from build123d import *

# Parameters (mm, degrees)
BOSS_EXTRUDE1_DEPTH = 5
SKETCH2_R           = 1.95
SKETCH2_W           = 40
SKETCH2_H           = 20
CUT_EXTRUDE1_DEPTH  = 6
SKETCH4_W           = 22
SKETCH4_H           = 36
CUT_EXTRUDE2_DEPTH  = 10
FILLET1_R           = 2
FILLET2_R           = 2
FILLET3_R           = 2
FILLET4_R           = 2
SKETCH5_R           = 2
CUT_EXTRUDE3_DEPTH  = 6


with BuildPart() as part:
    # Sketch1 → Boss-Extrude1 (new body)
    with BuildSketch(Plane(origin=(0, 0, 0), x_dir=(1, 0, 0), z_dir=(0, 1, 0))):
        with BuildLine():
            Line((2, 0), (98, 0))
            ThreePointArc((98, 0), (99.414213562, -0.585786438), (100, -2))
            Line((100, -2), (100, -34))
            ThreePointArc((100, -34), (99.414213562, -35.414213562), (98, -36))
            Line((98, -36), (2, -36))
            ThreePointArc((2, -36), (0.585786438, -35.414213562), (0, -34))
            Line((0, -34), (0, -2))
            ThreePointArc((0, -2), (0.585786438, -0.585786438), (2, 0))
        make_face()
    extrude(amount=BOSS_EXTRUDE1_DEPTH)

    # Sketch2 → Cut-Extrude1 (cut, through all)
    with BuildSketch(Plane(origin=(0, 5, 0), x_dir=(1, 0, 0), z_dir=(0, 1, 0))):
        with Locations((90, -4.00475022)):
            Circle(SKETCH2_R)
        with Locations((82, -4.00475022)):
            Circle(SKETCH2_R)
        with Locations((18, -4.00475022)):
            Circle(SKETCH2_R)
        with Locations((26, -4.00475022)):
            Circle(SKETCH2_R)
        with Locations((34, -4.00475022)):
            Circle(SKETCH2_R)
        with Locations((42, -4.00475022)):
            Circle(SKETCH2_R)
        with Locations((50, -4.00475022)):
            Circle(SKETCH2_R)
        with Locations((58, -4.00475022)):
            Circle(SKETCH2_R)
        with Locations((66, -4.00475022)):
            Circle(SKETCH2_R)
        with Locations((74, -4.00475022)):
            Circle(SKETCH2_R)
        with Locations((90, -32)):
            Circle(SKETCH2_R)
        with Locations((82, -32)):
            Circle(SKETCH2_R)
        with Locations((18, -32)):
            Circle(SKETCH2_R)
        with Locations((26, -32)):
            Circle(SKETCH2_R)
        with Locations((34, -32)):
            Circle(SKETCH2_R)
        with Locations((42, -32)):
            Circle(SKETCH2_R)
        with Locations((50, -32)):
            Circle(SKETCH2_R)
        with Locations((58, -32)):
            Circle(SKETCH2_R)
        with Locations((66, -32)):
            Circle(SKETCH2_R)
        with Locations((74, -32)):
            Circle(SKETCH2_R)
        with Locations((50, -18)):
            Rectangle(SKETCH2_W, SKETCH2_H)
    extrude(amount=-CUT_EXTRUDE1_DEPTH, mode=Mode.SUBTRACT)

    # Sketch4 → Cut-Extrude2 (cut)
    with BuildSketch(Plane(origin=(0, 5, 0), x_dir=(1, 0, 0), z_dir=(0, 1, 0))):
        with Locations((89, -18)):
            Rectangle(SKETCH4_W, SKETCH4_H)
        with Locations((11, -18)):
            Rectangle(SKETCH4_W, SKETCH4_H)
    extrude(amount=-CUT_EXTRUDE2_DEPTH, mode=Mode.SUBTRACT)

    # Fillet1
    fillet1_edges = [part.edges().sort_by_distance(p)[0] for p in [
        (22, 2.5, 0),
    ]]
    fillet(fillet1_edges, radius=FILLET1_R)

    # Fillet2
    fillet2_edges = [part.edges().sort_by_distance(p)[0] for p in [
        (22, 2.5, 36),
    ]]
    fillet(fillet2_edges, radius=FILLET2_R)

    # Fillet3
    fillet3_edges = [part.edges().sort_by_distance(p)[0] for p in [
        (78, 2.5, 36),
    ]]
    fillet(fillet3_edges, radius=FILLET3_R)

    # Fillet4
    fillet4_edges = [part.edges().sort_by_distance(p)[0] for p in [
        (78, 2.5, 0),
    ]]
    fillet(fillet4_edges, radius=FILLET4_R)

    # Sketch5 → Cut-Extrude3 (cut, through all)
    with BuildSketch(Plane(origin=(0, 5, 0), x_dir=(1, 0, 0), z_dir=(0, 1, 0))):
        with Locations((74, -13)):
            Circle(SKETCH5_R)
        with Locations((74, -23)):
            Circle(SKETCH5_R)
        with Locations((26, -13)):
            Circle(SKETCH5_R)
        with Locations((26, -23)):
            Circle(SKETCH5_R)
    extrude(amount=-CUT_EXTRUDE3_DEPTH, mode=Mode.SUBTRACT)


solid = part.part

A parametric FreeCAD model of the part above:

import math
import FreeCAD as App
import Part
import Sketcher

V = App.Vector


def edges_at(feature, points):
    """Names of the edges that pass closest to the given points."""
    edges = feature.Shape.Edges
    near = lambda p: min(range(len(edges)), key=lambda i: edges[i].distToShape(Part.Vertex(*p))[0])
    return sorted({f"Edge{near(p) + 1}" for p in points})

doc = App.newDocument("Part")
body = doc.addObject("PartDesign::Body", "Body")

# Sketch on XZ plane
sketch1 = body.newObject("Sketcher::SketchObject", "Sketch")
sketch1.AttachmentSupport = (doc.getObject("XZ_Plane"), [""])
sketch1.MapMode = "FlatFace"
sketch1.addGeometry([
    Part.LineSegment(V(98, 0, 0), V(2, 0, 0)),  # 0
    Part.ArcOfCircle(Part.Circle(V(2, 2, 0), V(0, 0, 1), 2), math.radians(-180), math.radians(-90)),  # 1
    Part.LineSegment(V(0, 2, 0), V(0, 34, 0)),  # 2
    Part.ArcOfCircle(Part.Circle(V(2, 34, 0), V(0, 0, 1), 2), math.radians(90), math.radians(180)),  # 3
    Part.LineSegment(V(2, 36, 0), V(98, 36, 0)),  # 4
    Part.ArcOfCircle(Part.Circle(V(98, 34, 0), V(0, 0, 1), 2), math.radians(0), math.radians(90)),  # 5
    Part.LineSegment(V(100, 34, 0), V(100, 2, 0)),  # 6
    Part.ArcOfCircle(Part.Circle(V(98, 2, 0), V(0, 0, 1), 2), math.radians(-90), math.radians(0)),  # 7
], False)
sketch1.addConstraint([
    Sketcher.Constraint("Tangent", 0, 2, 1, 2),
    Sketcher.Constraint("Tangent", 1, 1, 2, 1),
    Sketcher.Constraint("Tangent", 2, 2, 3, 2),
    Sketcher.Constraint("Tangent", 3, 1, 4, 1),
    Sketcher.Constraint("Tangent", 4, 2, 5, 2),
    Sketcher.Constraint("Tangent", 5, 1, 6, 1),
    Sketcher.Constraint("Tangent", 6, 2, 7, 2),
    Sketcher.Constraint("Tangent", 7, 1, 0, 1),
    Sketcher.Constraint("Horizontal", 0),
    Sketcher.Constraint("Vertical", 2),
    Sketcher.Constraint("Horizontal", 4),
    Sketcher.Constraint("Vertical", 6),
    Sketcher.Constraint("Equal", 1, 3),
    Sketcher.Constraint("Equal", 3, 5),
    Sketcher.Constraint("Equal", 5, 7),
    Sketcher.Constraint("PointOnObject", 0, 2, -1),
    Sketcher.Constraint("PointOnObject", 1, 1, -2),
    Sketcher.Constraint("Radius", 1, 2.0),
    Sketcher.Constraint("DistanceX", 0, 2, 0, 1, 96.0),
    Sketcher.Constraint("DistanceY", 2, 1, 2, 2, 32.0),
])
pad1 = body.newObject("PartDesign::Pad", "Pad")
pad1.Profile = sketch1
pad1.Length = 5
pad1.Reversed = True

# Sketch on XZ plane
sketch2 = body.newObject("Sketcher::SketchObject", "Sketch001")
sketch2.AttachmentSupport = (doc.getObject("XZ_Plane"), [""])
sketch2.MapMode = "FlatFace"
sketch2.AttachmentOffset = App.Placement(V(0, 0, -5), App.Rotation())
sketch2.addGeometry([
    Part.Circle(V(90, 4, 0), V(0, 0, 1), 1.9),  # 0
    Part.Circle(V(82, 4, 0), V(0, 0, 1), 1.9),  # 1
    Part.Circle(V(18, 4, 0), V(0, 0, 1), 1.9),  # 2
    Part.Circle(V(26, 4, 0), V(0, 0, 1), 1.9),  # 3
    Part.Circle(V(34, 4, 0), V(0, 0, 1), 1.9),  # 4
    Part.Circle(V(42, 4, 0), V(0, 0, 1), 1.9),  # 5
    Part.Circle(V(50, 4, 0), V(0, 0, 1), 1.9),  # 6
    Part.Circle(V(58, 4, 0), V(0, 0, 1), 1.9),  # 7
    Part.Circle(V(66, 4, 0), V(0, 0, 1), 1.9),  # 8
    Part.Circle(V(74, 4, 0), V(0, 0, 1), 1.9),  # 9
    Part.Circle(V(90, 32, 0), V(0, 0, 1), 1.9),  # 10
    Part.Circle(V(82, 32, 0), V(0, 0, 1), 1.9),  # 11
    Part.Circle(V(18, 32, 0), V(0, 0, 1), 1.9),  # 12
    Part.Circle(V(26, 32, 0), V(0, 0, 1), 1.9),  # 13
    Part.Circle(V(34, 32, 0), V(0, 0, 1), 1.9),  # 14
    Part.Circle(V(42, 32, 0), V(0, 0, 1), 1.9),  # 15
    Part.Circle(V(50, 32, 0), V(0, 0, 1), 1.9),  # 16
    Part.Circle(V(58, 32, 0), V(0, 0, 1), 1.9),  # 17
    Part.Circle(V(66, 32, 0), V(0, 0, 1), 1.9),  # 18
    Part.Circle(V(74, 32, 0), V(0, 0, 1), 1.9),  # 19
    Part.LineSegment(V(30, 8, 0), V(30, 28, 0)),  # 20
    Part.LineSegment(V(30, 28, 0), V(70, 28, 0)),  # 21
    Part.LineSegment(V(70, 28, 0), V(70, 8, 0)),  # 22
    Part.LineSegment(V(70, 8, 0), V(30, 8, 0)),  # 23
], False)
sketch2.addConstraint([
    Sketcher.Constraint("Coincident", 20, 2, 21, 1),
    Sketcher.Constraint("Coincident", 21, 2, 22, 1),
    Sketcher.Constraint("Coincident", 22, 2, 23, 1),
    Sketcher.Constraint("Coincident", 23, 2, 20, 1),
    Sketcher.Constraint("Vertical", 20),
    Sketcher.Constraint("Horizontal", 21),
    Sketcher.Constraint("Vertical", 22),
    Sketcher.Constraint("Horizontal", 23),
    Sketcher.Constraint("Equal", 0, 1),
    Sketcher.Constraint("Equal", 1, 2),
    Sketcher.Constraint("Equal", 2, 3),
    Sketcher.Constraint("Equal", 3, 4),
    Sketcher.Constraint("Equal", 4, 5),
    Sketcher.Constraint("Equal", 5, 6),
    Sketcher.Constraint("Equal", 6, 7),
    Sketcher.Constraint("Equal", 7, 8),
    Sketcher.Constraint("Equal", 8, 9),
    Sketcher.Constraint("Equal", 9, 10),
    Sketcher.Constraint("Equal", 10, 11),
    Sketcher.Constraint("Equal", 11, 12),
    Sketcher.Constraint("Equal", 12, 13),
    Sketcher.Constraint("Equal", 13, 14),
    Sketcher.Constraint("Equal", 14, 15),
    Sketcher.Constraint("Equal", 15, 16),
    Sketcher.Constraint("Equal", 16, 17),
    Sketcher.Constraint("Equal", 17, 18),
    Sketcher.Constraint("Equal", 18, 19),
    Sketcher.Constraint("Horizontal", 0, 3, 1, 3),
    Sketcher.Constraint("Horizontal", 1, 3, 2, 3),
    Sketcher.Constraint("Horizontal", 2, 3, 3, 3),
    Sketcher.Constraint("Horizontal", 3, 3, 4, 3),
    Sketcher.Constraint("Horizontal", 4, 3, 5, 3),
    Sketcher.Constraint("Horizontal", 5, 3, 6, 3),
    Sketcher.Constraint("Horizontal", 6, 3, 7, 3),
    Sketcher.Constraint("Horizontal", 7, 3, 8, 3),
    Sketcher.Constraint("Horizontal", 8, 3, 9, 3),
    Sketcher.Constraint("Horizontal", 10, 3, 11, 3),
    Sketcher.Constraint("Horizontal", 11, 3, 12, 3),
    Sketcher.Constraint("Horizontal", 12, 3, 13, 3),
    Sketcher.Constraint("Horizontal", 13, 3, 14, 3),
    Sketcher.Constraint("Horizontal", 14, 3, 15, 3),
    Sketcher.Constraint("Horizontal", 15, 3, 16, 3),
    Sketcher.Constraint("Horizontal", 16, 3, 17, 3),
    Sketcher.Constraint("Horizontal", 17, 3, 18, 3),
    Sketcher.Constraint("Horizontal", 18, 3, 19, 3),
    Sketcher.Constraint("Vertical", 0, 3, 10, 3),
    Sketcher.Constraint("Vertical", 1, 3, 11, 3),
    Sketcher.Constraint("Vertical", 2, 3, 12, 3),
    Sketcher.Constraint("Vertical", 3, 3, 13, 3),
    Sketcher.Constraint("Vertical", 4, 3, 14, 3),
    Sketcher.Constraint("Vertical", 5, 3, 15, 3),
    Sketcher.Constraint("Vertical", 6, 3, 16, 3),
    Sketcher.Constraint("Vertical", 7, 3, 17, 3),
    Sketcher.Constraint("Vertical", 8, 3, 18, 3),
    Sketcher.Constraint("Vertical", 9, 3, 19, 3),
    Sketcher.Constraint("Diameter", 0, 3.9),
    Sketcher.Constraint("DistanceX", 21, 1, 21, 2, 40.0),
    Sketcher.Constraint("DistanceY", 20, 1, 20, 2, 20.0),
    Sketcher.Constraint("DistanceX", -1, 1, 0, 3, 90.0),
    Sketcher.Constraint("DistanceX", -1, 1, 1, 3, 82.0),
    Sketcher.Constraint("DistanceX", -1, 1, 2, 3, 18.0),
    Sketcher.Constraint("DistanceX", -1, 1, 3, 3, 26.0),
    Sketcher.Constraint("DistanceX", -1, 1, 4, 3, 34.0),
    Sketcher.Constraint("DistanceX", -1, 1, 5, 3, 42.0),
    Sketcher.Constraint("DistanceX", -1, 1, 6, 3, 50.0),
    Sketcher.Constraint("DistanceX", -1, 1, 7, 3, 58.0),
    Sketcher.Constraint("DistanceX", -1, 1, 8, 3, 66.0),
    Sketcher.Constraint("DistanceX", -1, 1, 9, 3, 74.0),
    Sketcher.Constraint("DistanceY", -1, 1, 10, 3, 32.0),
    Sketcher.Constraint("DistanceX", -1, 1, 20, 2, 30.0),
    Sketcher.Constraint("DistanceY", -1, 1, 20, 2, 28.0),
    Sketcher.Constraint("DistanceY", -1, 1, 0, 3, 4.00475),
])
pocket1 = body.newObject("PartDesign::Pocket", "Pocket")
pocket1.Profile = sketch2
pocket1.Type = "ThroughAll"
pocket1.Reversed = True

# Sketch on XZ plane
sketch3 = body.newObject("Sketcher::SketchObject", "Sketch002")
sketch3.AttachmentSupport = (doc.getObject("XZ_Plane"), [""])
sketch3.MapMode = "FlatFace"
sketch3.AttachmentOffset = App.Placement(V(0, 0, -5), App.Rotation())
sketch3.addGeometry([
    Part.LineSegment(V(78, 0, 0), V(78, 36, 0)),  # 0
    Part.LineSegment(V(78, 36, 0), V(100, 36, 0)),  # 1
    Part.LineSegment(V(100, 36, 0), V(100, 0, 0)),  # 2
    Part.LineSegment(V(100, 0, 0), V(78, 0, 0)),  # 3
    Part.LineSegment(V(0, 0, 0), V(0, 36, 0)),  # 4
    Part.LineSegment(V(0, 36, 0), V(22, 36, 0)),  # 5
    Part.LineSegment(V(22, 36, 0), V(22, 0, 0)),  # 6
    Part.LineSegment(V(22, 0, 0), V(0, 0, 0)),  # 7
], False)
sketch3.addConstraint([
    Sketcher.Constraint("Coincident", 0, 2, 1, 1),
    Sketcher.Constraint("Coincident", 1, 2, 2, 1),
    Sketcher.Constraint("Coincident", 2, 2, 3, 1),
    Sketcher.Constraint("Coincident", 3, 2, 0, 1),
    Sketcher.Constraint("Coincident", 4, 2, 5, 1),
    Sketcher.Constraint("Coincident", 5, 2, 6, 1),
    Sketcher.Constraint("Coincident", 6, 2, 7, 1),
    Sketcher.Constraint("Coincident", 7, 2, 4, 1),
    Sketcher.Constraint("Vertical", 0),
    Sketcher.Constraint("Horizontal", 1),
    Sketcher.Constraint("Vertical", 2),
    Sketcher.Constraint("Horizontal", 3),
    Sketcher.Constraint("Vertical", 4),
    Sketcher.Constraint("Horizontal", 5),
    Sketcher.Constraint("Vertical", 6),
    Sketcher.Constraint("Horizontal", 7),
    Sketcher.Constraint("Coincident", 7, 2, -1, 1),
    Sketcher.Constraint("PointOnObject", 2, 2, -1),
    Sketcher.Constraint("Horizontal", 1, 2, 4, 2),
    Sketcher.Constraint("Equal", 3, 5),
    Sketcher.Constraint("DistanceX", 1, 1, 1, 2, 22.0),
    Sketcher.Constraint("DistanceY", 0, 1, 0, 2, 36.0),
    Sketcher.Constraint("DistanceX", -1, 1, 0, 2, 78.0),
])
pocket2 = body.newObject("PartDesign::Pocket", "Pocket001")
pocket2.Profile = sketch3
pocket2.Length = 10
pocket2.Reversed = True
doc.recompute()

fillet = body.newObject("PartDesign::Fillet", "Fillet")
fillet.Base = (pocket2, edges_at(pocket2, [(22, 2.5, 0)]))
fillet.Radius = 2
doc.recompute()

fillet2 = body.newObject("PartDesign::Fillet", "Fillet001")
fillet2.Base = (fillet, edges_at(fillet, [(22, 2.5, 36)]))
fillet2.Radius = 2
doc.recompute()

fillet3 = body.newObject("PartDesign::Fillet", "Fillet002")
fillet3.Base = (fillet2, edges_at(fillet2, [(78, 2.5, 36)]))
fillet3.Radius = 2
doc.recompute()

fillet4 = body.newObject("PartDesign::Fillet", "Fillet003")
fillet4.Base = (fillet3, edges_at(fillet3, [(78, 2.5, 0)]))
fillet4.Radius = 2

# Sketch on XZ plane
sketch4 = body.newObject("Sketcher::SketchObject", "Sketch003")
sketch4.AttachmentSupport = (doc.getObject("XZ_Plane"), [""])
sketch4.MapMode = "FlatFace"
sketch4.AttachmentOffset = App.Placement(V(0, 0, -5), App.Rotation())
sketch4.addGeometry([
    Part.Circle(V(74, 13, 0), V(0, 0, 1), 2),
    Part.Circle(V(74, 23, 0), V(0, 0, 1), 2),
    Part.Circle(V(26, 13, 0), V(0, 0, 1), 2),
    Part.Circle(V(26, 23, 0), V(0, 0, 1), 2),
], False)
sketch4.addConstraint([
    Sketcher.Constraint("Equal", 0, 1),
    Sketcher.Constraint("Equal", 1, 2),
    Sketcher.Constraint("Equal", 2, 3),
    Sketcher.Constraint("Horizontal", 0, 3, 2, 3),
    Sketcher.Constraint("Horizontal", 1, 3, 3, 3),
    Sketcher.Constraint("Vertical", 0, 3, 1, 3),
    Sketcher.Constraint("Vertical", 2, 3, 3, 3),
    Sketcher.Constraint("Diameter", 0, 4.0),
    Sketcher.Constraint("DistanceX", -1, 1, 0, 3, 74.0),
    Sketcher.Constraint("DistanceY", -1, 1, 0, 3, 13.0),
    Sketcher.Constraint("DistanceY", -1, 1, 1, 3, 23.0),
    Sketcher.Constraint("DistanceX", -1, 1, 2, 3, 26.0),
])
pocket3 = body.newObject("PartDesign::Pocket", "Pocket002")
pocket3.Profile = sketch4
pocket3.Type = "ThroughAll"
pocket3.Reversed = True

doc.recompute()
